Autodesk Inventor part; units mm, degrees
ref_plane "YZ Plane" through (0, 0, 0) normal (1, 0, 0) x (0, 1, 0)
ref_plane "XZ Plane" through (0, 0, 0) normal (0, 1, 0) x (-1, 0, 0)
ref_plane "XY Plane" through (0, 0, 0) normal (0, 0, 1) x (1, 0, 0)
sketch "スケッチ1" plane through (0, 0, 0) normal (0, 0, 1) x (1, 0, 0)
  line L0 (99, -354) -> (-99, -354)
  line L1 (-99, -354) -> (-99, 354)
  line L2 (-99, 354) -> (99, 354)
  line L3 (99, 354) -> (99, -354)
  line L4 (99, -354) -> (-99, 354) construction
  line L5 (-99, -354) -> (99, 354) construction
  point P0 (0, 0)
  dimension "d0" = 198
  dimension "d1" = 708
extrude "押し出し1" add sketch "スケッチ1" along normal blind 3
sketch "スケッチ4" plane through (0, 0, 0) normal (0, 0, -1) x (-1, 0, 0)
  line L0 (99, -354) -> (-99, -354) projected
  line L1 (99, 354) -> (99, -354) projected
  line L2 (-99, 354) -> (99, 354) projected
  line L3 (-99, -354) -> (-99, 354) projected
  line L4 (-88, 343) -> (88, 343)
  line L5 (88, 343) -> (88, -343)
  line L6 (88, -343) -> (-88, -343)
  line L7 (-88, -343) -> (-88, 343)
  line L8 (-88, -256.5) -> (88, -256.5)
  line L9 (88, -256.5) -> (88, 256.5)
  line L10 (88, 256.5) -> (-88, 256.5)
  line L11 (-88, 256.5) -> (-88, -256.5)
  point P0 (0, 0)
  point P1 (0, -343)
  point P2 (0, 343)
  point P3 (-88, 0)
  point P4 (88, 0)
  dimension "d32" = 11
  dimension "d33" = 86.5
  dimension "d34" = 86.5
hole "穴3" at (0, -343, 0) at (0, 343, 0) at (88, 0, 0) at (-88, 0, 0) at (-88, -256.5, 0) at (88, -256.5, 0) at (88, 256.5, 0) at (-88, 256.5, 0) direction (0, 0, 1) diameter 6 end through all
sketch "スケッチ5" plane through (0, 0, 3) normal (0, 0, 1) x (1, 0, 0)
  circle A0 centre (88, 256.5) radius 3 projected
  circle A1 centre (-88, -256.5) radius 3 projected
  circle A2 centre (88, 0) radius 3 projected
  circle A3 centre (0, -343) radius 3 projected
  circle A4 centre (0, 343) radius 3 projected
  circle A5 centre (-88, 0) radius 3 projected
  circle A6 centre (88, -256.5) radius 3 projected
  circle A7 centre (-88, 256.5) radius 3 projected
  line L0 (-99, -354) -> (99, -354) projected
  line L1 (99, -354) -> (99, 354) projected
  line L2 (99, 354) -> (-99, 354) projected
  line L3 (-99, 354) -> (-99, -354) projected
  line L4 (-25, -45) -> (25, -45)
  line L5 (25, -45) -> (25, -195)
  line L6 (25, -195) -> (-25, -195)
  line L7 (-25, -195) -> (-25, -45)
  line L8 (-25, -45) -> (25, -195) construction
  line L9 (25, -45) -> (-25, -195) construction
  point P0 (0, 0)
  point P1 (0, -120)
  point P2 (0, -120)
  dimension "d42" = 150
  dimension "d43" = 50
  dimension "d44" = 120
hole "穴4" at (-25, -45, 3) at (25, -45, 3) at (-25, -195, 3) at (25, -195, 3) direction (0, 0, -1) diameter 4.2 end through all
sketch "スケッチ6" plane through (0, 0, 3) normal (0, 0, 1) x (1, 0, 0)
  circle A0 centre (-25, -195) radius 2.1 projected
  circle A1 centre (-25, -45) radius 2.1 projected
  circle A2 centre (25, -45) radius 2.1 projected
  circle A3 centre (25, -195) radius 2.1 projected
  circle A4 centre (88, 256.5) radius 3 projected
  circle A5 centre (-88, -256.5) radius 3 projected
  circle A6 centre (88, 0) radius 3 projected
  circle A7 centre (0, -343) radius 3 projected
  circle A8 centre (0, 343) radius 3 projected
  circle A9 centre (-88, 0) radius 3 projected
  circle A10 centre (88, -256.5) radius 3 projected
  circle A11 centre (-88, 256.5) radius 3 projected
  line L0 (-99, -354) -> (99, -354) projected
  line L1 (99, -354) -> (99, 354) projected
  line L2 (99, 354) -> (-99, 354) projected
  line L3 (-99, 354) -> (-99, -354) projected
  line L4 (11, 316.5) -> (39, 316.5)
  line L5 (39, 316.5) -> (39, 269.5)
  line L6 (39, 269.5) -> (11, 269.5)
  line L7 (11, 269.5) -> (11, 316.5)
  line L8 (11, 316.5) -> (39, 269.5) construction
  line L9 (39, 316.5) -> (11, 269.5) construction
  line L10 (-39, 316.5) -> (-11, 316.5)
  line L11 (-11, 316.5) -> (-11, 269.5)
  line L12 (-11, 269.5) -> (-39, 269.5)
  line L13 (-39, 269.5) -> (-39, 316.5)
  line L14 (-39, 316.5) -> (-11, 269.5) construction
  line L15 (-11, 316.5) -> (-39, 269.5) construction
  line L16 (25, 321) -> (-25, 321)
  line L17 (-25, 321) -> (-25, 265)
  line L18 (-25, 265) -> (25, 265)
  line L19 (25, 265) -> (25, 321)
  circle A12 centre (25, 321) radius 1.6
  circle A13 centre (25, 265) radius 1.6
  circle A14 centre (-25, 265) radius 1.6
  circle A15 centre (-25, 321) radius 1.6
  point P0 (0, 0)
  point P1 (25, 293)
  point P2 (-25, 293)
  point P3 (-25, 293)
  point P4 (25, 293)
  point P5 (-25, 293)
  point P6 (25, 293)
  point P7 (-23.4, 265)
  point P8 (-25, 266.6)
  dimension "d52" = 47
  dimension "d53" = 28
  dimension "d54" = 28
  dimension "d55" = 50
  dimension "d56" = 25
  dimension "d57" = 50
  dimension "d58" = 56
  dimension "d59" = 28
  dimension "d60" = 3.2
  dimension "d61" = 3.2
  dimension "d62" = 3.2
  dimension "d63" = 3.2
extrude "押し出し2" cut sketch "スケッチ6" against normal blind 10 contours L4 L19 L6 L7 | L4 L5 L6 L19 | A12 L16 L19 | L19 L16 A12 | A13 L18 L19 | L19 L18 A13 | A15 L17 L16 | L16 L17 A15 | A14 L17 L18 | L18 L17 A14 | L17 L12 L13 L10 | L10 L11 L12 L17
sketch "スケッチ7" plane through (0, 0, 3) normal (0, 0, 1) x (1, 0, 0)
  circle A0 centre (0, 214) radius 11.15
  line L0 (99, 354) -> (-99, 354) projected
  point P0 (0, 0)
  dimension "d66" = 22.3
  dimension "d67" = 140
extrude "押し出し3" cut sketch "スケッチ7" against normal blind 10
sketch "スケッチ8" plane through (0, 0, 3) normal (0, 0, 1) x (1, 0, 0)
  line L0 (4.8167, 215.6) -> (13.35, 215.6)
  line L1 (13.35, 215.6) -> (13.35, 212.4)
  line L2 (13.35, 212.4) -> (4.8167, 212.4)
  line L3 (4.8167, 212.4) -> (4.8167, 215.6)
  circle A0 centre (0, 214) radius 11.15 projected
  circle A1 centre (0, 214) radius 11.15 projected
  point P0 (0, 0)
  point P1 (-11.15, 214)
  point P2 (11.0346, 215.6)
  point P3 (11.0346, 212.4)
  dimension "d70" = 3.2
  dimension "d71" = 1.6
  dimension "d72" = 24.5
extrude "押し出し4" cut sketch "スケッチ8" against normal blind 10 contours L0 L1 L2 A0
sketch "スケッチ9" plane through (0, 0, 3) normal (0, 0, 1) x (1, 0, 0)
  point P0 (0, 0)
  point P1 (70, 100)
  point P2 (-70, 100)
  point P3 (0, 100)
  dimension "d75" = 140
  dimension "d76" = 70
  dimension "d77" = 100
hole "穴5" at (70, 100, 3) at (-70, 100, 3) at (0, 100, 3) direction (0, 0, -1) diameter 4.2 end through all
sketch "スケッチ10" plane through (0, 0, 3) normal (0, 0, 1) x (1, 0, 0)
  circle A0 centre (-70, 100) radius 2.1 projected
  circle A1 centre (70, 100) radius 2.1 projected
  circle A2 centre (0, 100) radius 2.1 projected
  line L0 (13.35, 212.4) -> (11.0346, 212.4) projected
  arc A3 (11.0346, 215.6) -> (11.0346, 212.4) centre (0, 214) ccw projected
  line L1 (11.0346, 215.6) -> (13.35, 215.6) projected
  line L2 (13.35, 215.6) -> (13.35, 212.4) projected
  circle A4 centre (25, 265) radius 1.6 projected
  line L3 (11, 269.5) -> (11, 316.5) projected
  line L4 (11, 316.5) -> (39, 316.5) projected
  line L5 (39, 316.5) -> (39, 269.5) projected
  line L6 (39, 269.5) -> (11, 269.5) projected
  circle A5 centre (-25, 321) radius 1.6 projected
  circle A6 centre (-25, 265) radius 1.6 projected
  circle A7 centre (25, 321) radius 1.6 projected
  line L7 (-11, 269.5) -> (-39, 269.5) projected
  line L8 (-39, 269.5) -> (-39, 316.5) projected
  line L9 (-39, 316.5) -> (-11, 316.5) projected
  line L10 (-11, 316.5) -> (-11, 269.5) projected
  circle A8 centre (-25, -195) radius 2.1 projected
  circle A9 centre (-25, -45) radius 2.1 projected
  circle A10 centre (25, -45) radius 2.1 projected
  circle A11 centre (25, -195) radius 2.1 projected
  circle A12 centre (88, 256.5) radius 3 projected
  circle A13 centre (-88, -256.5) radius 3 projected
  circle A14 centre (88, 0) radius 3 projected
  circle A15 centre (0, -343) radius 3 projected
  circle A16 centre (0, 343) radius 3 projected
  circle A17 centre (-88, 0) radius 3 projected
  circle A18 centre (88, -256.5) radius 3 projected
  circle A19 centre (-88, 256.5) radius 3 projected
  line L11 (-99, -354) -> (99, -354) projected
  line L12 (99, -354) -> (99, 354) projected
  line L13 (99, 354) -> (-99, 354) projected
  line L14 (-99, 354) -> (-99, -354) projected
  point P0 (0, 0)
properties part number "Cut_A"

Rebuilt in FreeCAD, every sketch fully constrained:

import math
import FreeCAD as App
import Part
import Sketcher

V = App.Vector


def add_polygon(sketch, points):
    """Adds a closed chain of lines whose ends are joined by coincident constraints."""
    first, n = sketch.GeometryCount, len(points)
    for a, b in zip(points, points[1:] + points[:1]):
        sketch.addGeometry(Part.LineSegment(App.Vector(*a, 0), App.Vector(*b, 0)), False)
    for i in range(n):
        sketch.addConstraint(Sketcher.Constraint("Coincident", first + i, 2, first + (i + 1) % n, 1))

doc = App.newDocument("Part")
body = doc.addObject("PartDesign::Body", "Body")

sketch1 = body.newObject("Sketcher::SketchObject", "Sketch")
sketch1.AttachmentSupport = (doc.getObject("XY_Plane"), [""])
sketch1.MapMode = "FlatFace"
add_polygon(sketch1, [(-99, -354), (99, -354), (99, 354), (-99, 354)])
sketch1.addConstraint(Sketcher.Constraint("Horizontal", 0))
sketch1.addConstraint(Sketcher.Constraint("Vertical", 1))
sketch1.addConstraint(Sketcher.Constraint("Horizontal", 2))
sketch1.addConstraint(Sketcher.Constraint("Vertical", 3))
sketch1.addConstraint(Sketcher.Constraint("Symmetric", 0, 2, 2, 2, -1, 1))
sketch1.addConstraint(Sketcher.Constraint("DistanceX", 0, 1, 0, 2, 198.0))
sketch1.addConstraint(Sketcher.Constraint("DistanceY", 1, 1, 1, 2, 708.0))
pad1 = body.newObject("PartDesign::Pad", "Pad")
pad1.Profile = sketch1
pad1.Length = 3

sketch2 = body.newObject("Sketcher::SketchObject", "Sketch001")
sketch2.AttachmentSupport = (doc.getObject("XY_Plane"), [""])
sketch2.MapMode = "FlatFace"
sketch2.addGeometry(Part.Circle(V(0, -343, 0), V(0, 0, 1), 3), False)
sketch2.addGeometry(Part.Circle(V(0, 343, 0), V(0, 0, 1), 3), False)
sketch2.addGeometry(Part.Circle(V(88, 0, 0), V(0, 0, 1), 3), False)
sketch2.addGeometry(Part.Circle(V(-88, 0, 0), V(0, 0, 1), 3), False)
sketch2.addGeometry(Part.Circle(V(-88, -256.5, 0), V(0, 0, 1), 3), False)
sketch2.addGeometry(Part.Circle(V(88, -256.5, 0), V(0, 0, 1), 3), False)
sketch2.addGeometry(Part.Circle(V(88, 256.5, 0), V(0, 0, 1), 3), False)
sketch2.addGeometry(Part.Circle(V(-88, 256.5, 0), V(0, 0, 1), 3), False)
sketch2.addConstraint(Sketcher.Constraint("Equal", 0, 1))
sketch2.addConstraint(Sketcher.Constraint("Equal", 1, 2))
sketch2.addConstraint(Sketcher.Constraint("Equal", 2, 3))
sketch2.addConstraint(Sketcher.Constraint("Equal", 3, 4))
sketch2.addConstraint(Sketcher.Constraint("Equal", 4, 5))
sketch2.addConstraint(Sketcher.Constraint("Equal", 5, 6))
sketch2.addConstraint(Sketcher.Constraint("Equal", 6, 7))
sketch2.addConstraint(Sketcher.Constraint("Symmetric", 0, 3, 1, 3, -1, 1))
sketch2.addConstraint(Sketcher.Constraint("Symmetric", 2, 3, 3, 3, -1, 1))
sketch2.addConstraint(Sketcher.Constraint("Symmetric", 4, 3, 6, 3, -1, 1))
sketch2.addConstraint(Sketcher.Constraint("Symmetric", 5, 3, 7, 3, -1, 1))
sketch2.addConstraint(Sketcher.Constraint("Symmetric", 4, 3, 5, 3, -2))
sketch2.addConstraint(Sketcher.Constraint("PointOnObject", 0, 3, -2))
sketch2.addConstraint(Sketcher.Constraint("PointOnObject", 2, 3, -1))
sketch2.addConstraint(Sketcher.Constraint("Vertical", 3, 3, 4, 3))
sketch2.addConstraint(Sketcher.Constraint("Diameter", 0, 6.0))
sketch2.addConstraint(Sketcher.Constraint("DistanceY", 0, 3, -1, 1, 343.0))
sketch2.addConstraint(Sketcher.Constraint("DistanceX", -1, 1, 2, 3, 88.0))
sketch2.addConstraint(Sketcher.Constraint("DistanceY", 5, 3, 6, 3, 513.0))
doc.recompute()
hole = body.newObject("PartDesign::Hole", "Hole")
hole.Profile = sketch2
hole.ThreadType = "None"
hole.Diameter = 6
hole.DepthType = "ThroughAll"
hole.Reversed = True

sketch3 = body.newObject("Sketcher::SketchObject", "Sketch002")
sketch3.AttachmentSupport = (doc.getObject("XY_Plane"), [""])
sketch3.MapMode = "FlatFace"
sketch3.AttachmentOffset = App.Placement(V(0, 0, 3), App.Rotation())
sketch3.addGeometry(Part.Circle(V(-25, -45, 0), V(0, 0, 1), 2.1), False)
sketch3.addGeometry(Part.Circle(V(25, -45, 0), V(0, 0, 1), 2.1), False)
sketch3.addGeometry(Part.Circle(V(-25, -195, 0), V(0, 0, 1), 2.1), False)
sketch3.addGeometry(Part.Circle(V(25, -195, 0), V(0, 0, 1), 2.1), False)
sketch3.addConstraint(Sketcher.Constraint("Equal", 0, 1))
sketch3.addConstraint(Sketcher.Constraint("Equal", 1, 2))
sketch3.addConstraint(Sketcher.Constraint("Equal", 2, 3))
sketch3.addConstraint(Sketcher.Constraint("Symmetric", 0, 3, 1, 3, -2))
sketch3.addConstraint(Sketcher.Constraint("Symmetric", 2, 3, 3, 3, -2))
sketch3.addConstraint(Sketcher.Constraint("Vertical", 0, 3, 2, 3))
sketch3.addConstraint(Sketcher.Constraint("Diameter", 0, 4.2))
sketch3.addConstraint(Sketcher.Constraint("DistanceX", 0, 3, -1, 1, 25.0))
sketch3.addConstraint(Sketcher.Constraint("DistanceY", 0, 3, -1, 1, 45.0))
sketch3.addConstraint(Sketcher.Constraint("DistanceY", 2, 3, -1, 1, 195.0))
doc.recompute()
hole2 = body.newObject("PartDesign::Hole", "Hole001")
hole2.Profile = sketch3
hole2.ThreadType = "None"
hole2.Diameter = 4.2
hole2.DepthType = "ThroughAll"

sketch4 = body.newObject("Sketcher::SketchObject", "Sketch003")
sketch4.AttachmentSupport = (doc.getObject("XY_Plane"), [""])
sketch4.MapMode = "FlatFace"
sketch4.AttachmentOffset = App.Placement(V(0, 0, 3), App.Rotation())
add_polygon(sketch4, [(11, 316.5), (11, 269.5), (39, 269.5), (39, 316.5)])
sketch4.addGeometry(Part.Circle(V(25, 321, 0), V(0, 0, 1), 1.6), False)
sketch4.addGeometry(Part.Circle(V(25, 265, 0), V(0, 0, 1), 1.6), False)
sketch4.addGeometry(Part.Circle(V(-25, 321, 0), V(0, 0, 1), 1.6), False)
sketch4.addGeometry(Part.Circle(V(-25, 265, 0), V(0, 0, 1), 1.6), False)
add_polygon(sketch4, [(-39, 269.5), (-11, 269.5), (-11, 316.5), (-39, 316.5)])
sketch4.addConstraint(Sketcher.Constraint("Vertical", 0))
sketch4.addConstraint(Sketcher.Constraint("Horizontal", 1))
sketch4.addConstraint(Sketcher.Constraint("Vertical", 2))
sketch4.addConstraint(Sketcher.Constraint("Horizontal", 3))
sketch4.addConstraint(Sketcher.Constraint("Horizontal", 8))
sketch4.addConstraint(Sketcher.Constraint("Vertical", 9))
sketch4.addConstraint(Sketcher.Constraint("Horizontal", 10))
sketch4.addConstraint(Sketcher.Constraint("Vertical", 11))
sketch4.addConstraint(Sketcher.Constraint("Equal", 4, 5))
sketch4.addConstraint(Sketcher.Constraint("Equal", 5, 6))
sketch4.addConstraint(Sketcher.Constraint("Equal", 6, 7))
sketch4.addConstraint(Sketcher.Constraint("Symmetric", 4, 3, 6, 3, -2))
sketch4.addConstraint(Sketcher.Constraint("Symmetric", 5, 3, 7, 3, -2))
sketch4.addConstraint(Sketcher.Constraint("Symmetric", 0, 2, 8, 2, -2))
sketch4.addConstraint(Sketcher.Constraint("Symmetric", 2, 2, 10, 2, -2))
sketch4.addConstraint(Sketcher.Constraint("Vertical", 4, 3, 5, 3))
sketch4.addConstraint(Sketcher.Constraint("Diameter", 4, 3.2))
sketch4.addConstraint(Sketcher.Constraint("DistanceX", 1, 1, 1, 2, 28.0))
sketch4.addConstraint(Sketcher.Constraint("DistanceY", 0, 2, 0, 1, 47.0))
sketch4.addConstraint(Sketcher.Constraint("DistanceX", -1, 1, 4, 3, 25.0))
sketch4.addConstraint(Sketcher.Constraint("DistanceY", 5, 3, 4, 3, 56.0))
sketch4.addConstraint(Sketcher.Constraint("DistanceX", 8, 2, 1, 2, 50.0))
sketch4.addConstraint(Sketcher.Constraint("DistanceY", -1, 1, 4, 3, 321.0))
sketch4.addConstraint(Sketcher.Constraint("DistanceY", -1, 1, 0, 2, 269.5))
pocket1 = body.newObject("PartDesign::Pocket", "Pocket")
pocket1.Profile = sketch4
pocket1.Length = 10

sketch5 = body.newObject("Sketcher::SketchObject", "Sketch004")
sketch5.AttachmentSupport = (doc.getObject("XY_Plane"), [""])
sketch5.MapMode = "FlatFace"
sketch5.AttachmentOffset = App.Placement(V(0, 0, 3), App.Rotation())
sketch5.addGeometry(Part.Circle(V(0, 214, 0), V(0, 0, 1), 11.15), False)
sketch5.addConstraint(Sketcher.Constraint("PointOnObject", 0, 3, -2))
sketch5.addConstraint(Sketcher.Constraint("Diameter", 0, 22.3))
sketch5.addConstraint(Sketcher.Constraint("DistanceY", -1, 1, 0, 3, 214.0))
pocket2 = body.newObject("PartDesign::Pocket", "Pocket001")
pocket2.Profile = sketch5
pocket2.Length = 10

sketch6 = body.newObject("Sketcher::SketchObject", "Sketch005")
sketch6.AttachmentSupport = (doc.getObject("XY_Plane"), [""])
sketch6.MapMode = "FlatFace"
sketch6.AttachmentOffset = App.Placement(V(0, 0, 3), App.Rotation())
sketch6.addGeometry(Part.LineSegment(V(13.35, 215.6, 0), V(11.034605, 215.6, 0)), False)
sketch6.addGeometry(Part.ArcOfCircle(Part.Circle(V(0, 214, 0), V(0, 0, 1), 11.15), math.radians(-8.250297), math.radians(8.250297)), False)
sketch6.addGeometry(Part.LineSegment(V(11.034605, 212.4, 0), V(13.35, 212.4, 0)), False)
sketch6.addGeometry(Part.LineSegment(V(13.35, 212.4, 0), V(13.35, 215.6, 0)), False)
sketch6.addConstraint(Sketcher.Constraint("Coincident", 0, 2, 1, 2))
sketch6.addConstraint(Sketcher.Constraint("Coincident", 1, 1, 2, 1))
sketch6.addConstraint(Sketcher.Constraint("Coincident", 2, 2, 3, 1))
sketch6.addConstraint(Sketcher.Constraint("Coincident", 3, 2, 0, 1))
sketch6.addConstraint(Sketcher.Constraint("Horizontal", 0))
sketch6.addConstraint(Sketcher.Constraint("Horizontal", 2))
sketch6.addConstraint(Sketcher.Constraint("Vertical", 3))
sketch6.addConstraint(Sketcher.Constraint("PointOnObject", 1, 3, -2))
sketch6.addConstraint(Sketcher.Constraint("Vertical", 0, 2, 1, 1))
sketch6.addConstraint(Sketcher.Constraint("DistanceY", 3, 1, 3, 2, 3.2))
sketch6.addConstraint(Sketcher.Constraint("Radius", 1, 11.15))
sketch6.addConstraint(Sketcher.Constraint("DistanceY", -1, 1, 1, 3, 214.0))
sketch6.addConstraint(Sketcher.Constraint("DistanceX", -1, 1, 2, 2, 13.35))
pocket3 = body.newObject("PartDesign::Pocket", "Pocket002")
pocket3.Profile = sketch6
pocket3.Length = 10

sketch7 = body.newObject("Sketcher::SketchObject", "Sketch006")
sketch7.AttachmentSupport = (doc.getObject("XY_Plane"), [""])
sketch7.MapMode = "FlatFace"
sketch7.AttachmentOffset = App.Placement(V(0, 0, 3), App.Rotation())
sketch7.addGeometry(Part.Circle(V(70, 100, 0), V(0, 0, 1), 2.1), False)
sketch7.addGeometry(Part.Circle(V(-70, 100, 0), V(0, 0, 1), 2.1), False)
sketch7.addGeometry(Part.Circle(V(0, 100, 0), V(0, 0, 1), 2.1), False)
sketch7.addConstraint(Sketcher.Constraint("Equal", 0, 1))
sketch7.addConstraint(Sketcher.Constraint("Equal", 1, 2))
sketch7.addConstraint(Sketcher.Constraint("Symmetric", 0, 3, 1, 3, -2))
sketch7.addConstraint(Sketcher.Constraint("PointOnObject", 2, 3, -2))
sketch7.addConstraint(Sketcher.Constraint("Horizontal", 1, 3, 2, 3))
sketch7.addConstraint(Sketcher.Constraint("Diameter", 0, 4.2))
sketch7.addConstraint(Sketcher.Constraint("DistanceX", -1, 1, 0, 3, 70.0))
sketch7.addConstraint(Sketcher.Constraint("DistanceY", -1, 1, 0, 3, 100.0))
doc.recompute()
hole3 = body.newObject("PartDesign::Hole", "Hole002")
hole3.Profile = sketch7
hole3.ThreadType = "None"
hole3.Diameter = 4.2
hole3.DepthType = "ThroughAll"

doc.recompute()
